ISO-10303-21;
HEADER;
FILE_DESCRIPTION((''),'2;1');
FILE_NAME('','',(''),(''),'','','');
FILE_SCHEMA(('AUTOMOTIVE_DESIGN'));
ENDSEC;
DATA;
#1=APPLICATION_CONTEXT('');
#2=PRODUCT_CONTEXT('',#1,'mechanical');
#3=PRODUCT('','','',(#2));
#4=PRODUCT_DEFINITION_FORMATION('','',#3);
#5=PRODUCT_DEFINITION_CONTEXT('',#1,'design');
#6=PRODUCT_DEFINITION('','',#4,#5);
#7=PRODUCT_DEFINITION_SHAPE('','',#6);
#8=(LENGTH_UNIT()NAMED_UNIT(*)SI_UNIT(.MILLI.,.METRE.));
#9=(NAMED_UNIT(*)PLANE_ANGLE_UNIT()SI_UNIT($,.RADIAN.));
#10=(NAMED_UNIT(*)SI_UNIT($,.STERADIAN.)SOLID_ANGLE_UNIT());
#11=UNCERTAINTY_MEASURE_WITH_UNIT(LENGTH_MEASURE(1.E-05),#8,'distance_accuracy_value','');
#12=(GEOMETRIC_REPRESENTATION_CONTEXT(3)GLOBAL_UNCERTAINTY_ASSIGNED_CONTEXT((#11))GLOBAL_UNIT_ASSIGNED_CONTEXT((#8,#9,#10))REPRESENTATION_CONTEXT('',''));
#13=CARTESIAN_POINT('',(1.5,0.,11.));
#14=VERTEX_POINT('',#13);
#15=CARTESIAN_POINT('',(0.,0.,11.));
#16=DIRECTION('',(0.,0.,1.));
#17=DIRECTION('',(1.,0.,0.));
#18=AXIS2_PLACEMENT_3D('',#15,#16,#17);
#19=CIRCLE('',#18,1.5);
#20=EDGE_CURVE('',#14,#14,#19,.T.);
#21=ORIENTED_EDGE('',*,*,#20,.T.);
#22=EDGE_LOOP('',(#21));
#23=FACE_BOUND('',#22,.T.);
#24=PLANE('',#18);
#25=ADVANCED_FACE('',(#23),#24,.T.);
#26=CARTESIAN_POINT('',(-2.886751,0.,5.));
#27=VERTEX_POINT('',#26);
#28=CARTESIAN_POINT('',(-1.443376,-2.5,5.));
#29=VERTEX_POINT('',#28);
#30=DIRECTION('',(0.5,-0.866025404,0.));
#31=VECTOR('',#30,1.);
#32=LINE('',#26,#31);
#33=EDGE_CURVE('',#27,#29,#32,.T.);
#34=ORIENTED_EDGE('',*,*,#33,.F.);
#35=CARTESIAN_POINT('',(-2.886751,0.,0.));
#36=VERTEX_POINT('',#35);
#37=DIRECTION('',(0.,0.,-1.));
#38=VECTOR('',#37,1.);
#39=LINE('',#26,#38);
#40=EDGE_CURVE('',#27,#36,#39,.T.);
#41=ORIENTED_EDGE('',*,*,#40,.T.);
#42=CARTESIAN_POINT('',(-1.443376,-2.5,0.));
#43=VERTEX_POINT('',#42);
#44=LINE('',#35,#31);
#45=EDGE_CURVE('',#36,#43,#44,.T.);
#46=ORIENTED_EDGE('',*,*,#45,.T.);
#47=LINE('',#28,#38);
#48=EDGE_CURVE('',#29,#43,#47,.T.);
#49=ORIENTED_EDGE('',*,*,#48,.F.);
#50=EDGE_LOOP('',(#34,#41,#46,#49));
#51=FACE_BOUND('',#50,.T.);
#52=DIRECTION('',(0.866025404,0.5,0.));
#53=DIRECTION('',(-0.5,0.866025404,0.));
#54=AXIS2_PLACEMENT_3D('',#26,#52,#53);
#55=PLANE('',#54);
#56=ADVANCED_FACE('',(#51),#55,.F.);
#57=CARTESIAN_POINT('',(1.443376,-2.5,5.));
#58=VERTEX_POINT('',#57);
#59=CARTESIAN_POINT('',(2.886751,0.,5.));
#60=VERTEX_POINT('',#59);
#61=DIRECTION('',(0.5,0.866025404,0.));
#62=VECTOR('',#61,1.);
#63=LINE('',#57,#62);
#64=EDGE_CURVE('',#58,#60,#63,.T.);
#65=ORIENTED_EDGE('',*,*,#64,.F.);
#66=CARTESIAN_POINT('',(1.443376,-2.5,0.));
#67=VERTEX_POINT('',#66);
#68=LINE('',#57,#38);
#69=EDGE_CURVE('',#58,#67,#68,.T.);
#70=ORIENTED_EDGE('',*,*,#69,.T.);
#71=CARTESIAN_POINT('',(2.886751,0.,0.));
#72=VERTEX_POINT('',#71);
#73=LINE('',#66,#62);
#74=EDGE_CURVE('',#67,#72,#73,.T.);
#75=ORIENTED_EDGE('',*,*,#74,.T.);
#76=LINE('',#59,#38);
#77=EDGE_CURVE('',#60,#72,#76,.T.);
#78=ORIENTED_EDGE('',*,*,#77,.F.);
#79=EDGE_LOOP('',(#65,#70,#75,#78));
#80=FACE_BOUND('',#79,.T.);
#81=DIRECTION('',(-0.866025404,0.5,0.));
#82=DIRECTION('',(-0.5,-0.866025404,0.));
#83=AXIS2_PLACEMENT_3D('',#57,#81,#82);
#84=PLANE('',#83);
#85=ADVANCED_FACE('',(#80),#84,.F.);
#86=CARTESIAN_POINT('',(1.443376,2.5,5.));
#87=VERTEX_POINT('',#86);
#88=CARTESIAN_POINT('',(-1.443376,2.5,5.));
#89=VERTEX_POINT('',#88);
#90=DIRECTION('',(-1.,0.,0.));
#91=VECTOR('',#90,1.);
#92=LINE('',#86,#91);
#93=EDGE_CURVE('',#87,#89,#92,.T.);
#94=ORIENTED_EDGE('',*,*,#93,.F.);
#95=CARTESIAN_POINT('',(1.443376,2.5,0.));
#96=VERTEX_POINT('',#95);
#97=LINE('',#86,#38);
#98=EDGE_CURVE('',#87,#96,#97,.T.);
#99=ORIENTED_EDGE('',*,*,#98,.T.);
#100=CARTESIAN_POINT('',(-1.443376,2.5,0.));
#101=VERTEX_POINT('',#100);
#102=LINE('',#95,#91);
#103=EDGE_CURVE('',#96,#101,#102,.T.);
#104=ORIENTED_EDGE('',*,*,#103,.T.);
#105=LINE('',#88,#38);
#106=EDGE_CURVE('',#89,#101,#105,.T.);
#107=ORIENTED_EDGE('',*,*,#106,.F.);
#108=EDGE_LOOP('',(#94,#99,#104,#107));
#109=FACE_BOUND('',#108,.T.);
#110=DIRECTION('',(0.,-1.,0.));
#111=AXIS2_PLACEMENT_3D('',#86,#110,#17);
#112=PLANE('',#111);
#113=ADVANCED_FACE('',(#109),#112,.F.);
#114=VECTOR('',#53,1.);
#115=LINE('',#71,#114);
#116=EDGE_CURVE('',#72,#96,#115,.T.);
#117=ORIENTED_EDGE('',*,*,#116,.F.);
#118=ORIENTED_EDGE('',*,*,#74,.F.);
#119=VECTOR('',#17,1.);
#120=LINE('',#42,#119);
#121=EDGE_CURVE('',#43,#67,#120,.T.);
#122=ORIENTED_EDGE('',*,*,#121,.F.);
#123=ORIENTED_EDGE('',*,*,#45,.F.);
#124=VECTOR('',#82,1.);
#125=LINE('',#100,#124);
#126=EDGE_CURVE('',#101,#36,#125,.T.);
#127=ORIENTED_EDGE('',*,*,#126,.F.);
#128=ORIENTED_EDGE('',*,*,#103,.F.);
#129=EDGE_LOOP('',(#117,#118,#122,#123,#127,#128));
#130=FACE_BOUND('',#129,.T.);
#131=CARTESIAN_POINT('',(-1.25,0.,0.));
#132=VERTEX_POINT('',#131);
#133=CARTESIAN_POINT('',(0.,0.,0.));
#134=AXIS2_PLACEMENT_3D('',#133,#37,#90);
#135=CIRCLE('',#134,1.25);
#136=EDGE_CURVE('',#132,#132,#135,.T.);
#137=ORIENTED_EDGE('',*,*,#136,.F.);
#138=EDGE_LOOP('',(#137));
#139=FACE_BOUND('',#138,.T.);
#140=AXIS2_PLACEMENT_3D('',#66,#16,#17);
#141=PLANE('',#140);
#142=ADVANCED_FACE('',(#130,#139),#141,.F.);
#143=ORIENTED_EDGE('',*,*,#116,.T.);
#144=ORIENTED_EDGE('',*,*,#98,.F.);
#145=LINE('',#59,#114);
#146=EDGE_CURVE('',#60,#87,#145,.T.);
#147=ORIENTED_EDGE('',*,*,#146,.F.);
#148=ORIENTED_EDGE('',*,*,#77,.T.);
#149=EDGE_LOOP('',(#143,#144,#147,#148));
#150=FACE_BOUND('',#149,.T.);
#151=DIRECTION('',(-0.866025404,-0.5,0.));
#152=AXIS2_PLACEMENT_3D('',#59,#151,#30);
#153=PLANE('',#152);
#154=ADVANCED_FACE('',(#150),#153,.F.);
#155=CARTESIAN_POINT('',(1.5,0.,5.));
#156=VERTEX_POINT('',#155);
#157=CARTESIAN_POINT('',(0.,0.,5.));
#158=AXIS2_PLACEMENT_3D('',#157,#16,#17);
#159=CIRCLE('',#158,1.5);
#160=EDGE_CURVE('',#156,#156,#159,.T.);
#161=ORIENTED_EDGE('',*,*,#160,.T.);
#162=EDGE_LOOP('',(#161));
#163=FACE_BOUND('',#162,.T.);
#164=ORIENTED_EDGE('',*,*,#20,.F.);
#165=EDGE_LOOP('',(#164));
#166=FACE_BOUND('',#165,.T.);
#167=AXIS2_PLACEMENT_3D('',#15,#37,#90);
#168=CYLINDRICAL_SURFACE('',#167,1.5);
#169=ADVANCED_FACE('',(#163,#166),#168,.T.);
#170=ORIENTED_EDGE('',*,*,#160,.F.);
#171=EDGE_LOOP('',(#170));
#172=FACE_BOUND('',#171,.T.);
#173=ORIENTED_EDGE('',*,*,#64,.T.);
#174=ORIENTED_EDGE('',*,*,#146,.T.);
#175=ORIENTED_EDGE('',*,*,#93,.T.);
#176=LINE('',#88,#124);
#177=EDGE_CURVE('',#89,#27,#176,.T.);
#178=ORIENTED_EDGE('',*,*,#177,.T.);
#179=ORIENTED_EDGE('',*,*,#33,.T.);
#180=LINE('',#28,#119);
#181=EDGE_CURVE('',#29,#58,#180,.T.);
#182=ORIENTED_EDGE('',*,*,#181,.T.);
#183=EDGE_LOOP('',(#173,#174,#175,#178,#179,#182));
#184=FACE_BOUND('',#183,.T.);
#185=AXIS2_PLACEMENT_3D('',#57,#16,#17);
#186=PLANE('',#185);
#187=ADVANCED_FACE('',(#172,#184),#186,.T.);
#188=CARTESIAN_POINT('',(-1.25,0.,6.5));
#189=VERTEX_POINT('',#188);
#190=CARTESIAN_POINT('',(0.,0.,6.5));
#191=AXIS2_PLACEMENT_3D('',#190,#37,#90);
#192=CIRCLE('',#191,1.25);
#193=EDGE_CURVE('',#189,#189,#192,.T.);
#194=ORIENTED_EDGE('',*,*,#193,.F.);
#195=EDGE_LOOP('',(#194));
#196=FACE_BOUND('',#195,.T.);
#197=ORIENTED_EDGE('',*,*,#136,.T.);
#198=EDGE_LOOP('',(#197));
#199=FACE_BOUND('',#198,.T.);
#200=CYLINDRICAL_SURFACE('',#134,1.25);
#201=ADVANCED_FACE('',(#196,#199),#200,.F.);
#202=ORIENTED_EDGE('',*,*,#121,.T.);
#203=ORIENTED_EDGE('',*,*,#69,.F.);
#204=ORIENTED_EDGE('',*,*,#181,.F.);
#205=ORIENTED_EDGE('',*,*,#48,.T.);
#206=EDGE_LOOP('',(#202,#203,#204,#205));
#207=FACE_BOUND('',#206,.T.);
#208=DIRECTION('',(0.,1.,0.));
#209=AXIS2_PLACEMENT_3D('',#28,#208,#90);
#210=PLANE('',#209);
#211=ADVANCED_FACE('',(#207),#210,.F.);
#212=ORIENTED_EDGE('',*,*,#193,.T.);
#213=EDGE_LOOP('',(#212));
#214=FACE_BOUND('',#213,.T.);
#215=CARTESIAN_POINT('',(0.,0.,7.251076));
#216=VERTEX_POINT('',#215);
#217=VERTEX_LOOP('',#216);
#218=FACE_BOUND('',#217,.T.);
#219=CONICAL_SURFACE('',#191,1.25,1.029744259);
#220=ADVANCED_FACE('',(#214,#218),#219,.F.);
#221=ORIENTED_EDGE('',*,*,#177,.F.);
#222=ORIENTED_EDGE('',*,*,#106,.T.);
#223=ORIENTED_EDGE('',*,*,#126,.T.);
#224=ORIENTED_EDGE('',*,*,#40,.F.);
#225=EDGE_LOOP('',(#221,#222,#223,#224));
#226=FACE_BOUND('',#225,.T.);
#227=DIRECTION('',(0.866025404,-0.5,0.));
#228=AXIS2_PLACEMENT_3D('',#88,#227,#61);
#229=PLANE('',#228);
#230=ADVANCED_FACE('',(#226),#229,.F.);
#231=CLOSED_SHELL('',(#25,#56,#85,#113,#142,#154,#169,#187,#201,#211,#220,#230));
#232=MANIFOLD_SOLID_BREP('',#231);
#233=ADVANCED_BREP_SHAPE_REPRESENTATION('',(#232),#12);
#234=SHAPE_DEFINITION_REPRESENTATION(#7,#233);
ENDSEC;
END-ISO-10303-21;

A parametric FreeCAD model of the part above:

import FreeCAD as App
import Part
import Sketcher

V = App.Vector
Q = App.Units.Quantity

doc = App.newDocument("Part")
params = doc.addObject("Spreadsheet::Sheet", "Params")
for row, (alias, value) in enumerate([
    ("pad1_length", "5 mm"),
    ("sketch2_diameter", "3 mm"),
    ("pad2_length", "6 mm"),
    ("sketch3_diameter", "2.5 mm"),
    ("hole_diameter", "2.5 mm"),
    ("hole_depth", "6.5 mm"),
], start=1):
    params.set(f"A{row}", alias)
    params.set(f"B{row}", "=" + value)
    params.setAlias(f"B{row}", alias)

body = doc.addObject("PartDesign::Body", "Body")

# Sketch on XY plane
sketch1 = body.newObject("Sketcher::SketchObject", "Sketch")
sketch1.AttachmentSupport = (doc.getObject("XY_Plane"), [""])
sketch1.MapMode = "FlatFace"
sketch1.addGeometry(Part.LineSegment(V(1.4, -2.5, 0), V(2.9, 0, 0)), False)
sketch1.addGeometry(Part.LineSegment(V(2.9, 0, 0), V(1.4, 2.5, 0)), False)
sketch1.addGeometry(Part.LineSegment(V(1.4, 2.5, 0), V(-1.4, 2.5, 0)), False)
sketch1.addGeometry(Part.LineSegment(V(-1.4, 2.5, 0), V(-2.9, 0, 0)), False)
sketch1.addGeometry(Part.LineSegment(V(-2.9, 0, 0), V(-1.4, -2.5, 0)), False)
sketch1.addGeometry(Part.LineSegment(V(-1.4, -2.5, 0), V(1.4, -2.5, 0)), False)
sketch1.addConstraint(Sketcher.Constraint("Coincident", 0, 2, 1, 1))
sketch1.addConstraint(Sketcher.Constraint("Coincident", 1, 2, 2, 1))
sketch1.addConstraint(Sketcher.Constraint("Coincident", 2, 2, 3, 1))
sketch1.addConstraint(Sketcher.Constraint("Coincident", 3, 2, 4, 1))
sketch1.addConstraint(Sketcher.Constraint("Coincident", 4, 2, 5, 1))
sketch1.addConstraint(Sketcher.Constraint("Coincident", 5, 2, 0, 1))
sketch1.addConstraint(Sketcher.Constraint("Horizontal", 2))
sketch1.addConstraint(Sketcher.Constraint("Horizontal", 5))
sketch1.addConstraint(Sketcher.Constraint("Symmetric", 0, 2, 3, 2, -1, 1))
sketch1.addConstraint(Sketcher.Constraint("Symmetric", 1, 2, 4, 2, -1, 1))
sketch1.addConstraint(Sketcher.Constraint("PointOnObject", 0, 2, -1))
sketch1.addConstraint(Sketcher.Constraint("Parallel", 0, 3))
sketch1.addConstraint(Sketcher.Constraint("Vertical", 2, 2, 4, 2))
sketch1.addConstraint(Sketcher.Constraint("Angle", 0, Q("60 deg")))
sketch1.addConstraint(Sketcher.Constraint("DistanceY", 4, 2, 2, 2, 5.0))
sketch1.addConstraint(Sketcher.Constraint("DistanceX", 2, 2, 2, 1, 2.886751))
pad1 = body.newObject("PartDesign::Pad", "Pad")
pad1.Profile = sketch1
pad1.setExpression("Length", "Params.pad1_length")

# Sketch on XY plane
sketch2 = body.newObject("Sketcher::SketchObject", "Sketch001")
sketch2.AttachmentSupport = (doc.getObject("XY_Plane"), [""])
sketch2.MapMode = "FlatFace"
sketch2.AttachmentOffset = App.Placement(V(0, 0, 5), App.Rotation())
sketch2.addGeometry(Part.Circle(V(0, 0, 0), V(0, 0, 1), 1.5), False)
sketch2.addConstraint(Sketcher.Constraint("Coincident", 0, 3, -1, 1))
sketch2.addConstraint(Sketcher.Constraint("Diameter", 0, 3.0))
sketch2.setExpression("Constraints[1]", "Params.sketch2_diameter")
pad2 = body.newObject("PartDesign::Pad", "Pad001")
pad2.Profile = sketch2
pad2.setExpression("Length", "Params.pad2_length")

# Sketch on XY plane
sketch3 = body.newObject("Sketcher::SketchObject", "Sketch002")
sketch3.AttachmentSupport = (doc.getObject("XY_Plane"), [""])
sketch3.MapMode = "FlatFace"
sketch3.addGeometry(Part.Circle(V(0, 0, 0), V(0, 0, 1), 1.2), False)
sketch3.addConstraint(Sketcher.Constraint("Coincident", 0, 3, -1, 1))
sketch3.addConstraint(Sketcher.Constraint("Diameter", 0, 2.5))
sketch3.setExpression("Constraints[1]", "Params.sketch3_diameter")
doc.recompute()
hole = body.newObject("PartDesign::Hole", "Hole")
hole.Profile = sketch3
hole.ThreadType = "None"
hole.setExpression("Diameter", "Params.hole_diameter")
hole.DepthType = "Dimension"
hole.setExpression("Depth", "Params.hole_depth")
hole.DrillPoint = "Angled"
hole.DrillPointAngle = 118
hole.Reversed = True

doc.recompute()
